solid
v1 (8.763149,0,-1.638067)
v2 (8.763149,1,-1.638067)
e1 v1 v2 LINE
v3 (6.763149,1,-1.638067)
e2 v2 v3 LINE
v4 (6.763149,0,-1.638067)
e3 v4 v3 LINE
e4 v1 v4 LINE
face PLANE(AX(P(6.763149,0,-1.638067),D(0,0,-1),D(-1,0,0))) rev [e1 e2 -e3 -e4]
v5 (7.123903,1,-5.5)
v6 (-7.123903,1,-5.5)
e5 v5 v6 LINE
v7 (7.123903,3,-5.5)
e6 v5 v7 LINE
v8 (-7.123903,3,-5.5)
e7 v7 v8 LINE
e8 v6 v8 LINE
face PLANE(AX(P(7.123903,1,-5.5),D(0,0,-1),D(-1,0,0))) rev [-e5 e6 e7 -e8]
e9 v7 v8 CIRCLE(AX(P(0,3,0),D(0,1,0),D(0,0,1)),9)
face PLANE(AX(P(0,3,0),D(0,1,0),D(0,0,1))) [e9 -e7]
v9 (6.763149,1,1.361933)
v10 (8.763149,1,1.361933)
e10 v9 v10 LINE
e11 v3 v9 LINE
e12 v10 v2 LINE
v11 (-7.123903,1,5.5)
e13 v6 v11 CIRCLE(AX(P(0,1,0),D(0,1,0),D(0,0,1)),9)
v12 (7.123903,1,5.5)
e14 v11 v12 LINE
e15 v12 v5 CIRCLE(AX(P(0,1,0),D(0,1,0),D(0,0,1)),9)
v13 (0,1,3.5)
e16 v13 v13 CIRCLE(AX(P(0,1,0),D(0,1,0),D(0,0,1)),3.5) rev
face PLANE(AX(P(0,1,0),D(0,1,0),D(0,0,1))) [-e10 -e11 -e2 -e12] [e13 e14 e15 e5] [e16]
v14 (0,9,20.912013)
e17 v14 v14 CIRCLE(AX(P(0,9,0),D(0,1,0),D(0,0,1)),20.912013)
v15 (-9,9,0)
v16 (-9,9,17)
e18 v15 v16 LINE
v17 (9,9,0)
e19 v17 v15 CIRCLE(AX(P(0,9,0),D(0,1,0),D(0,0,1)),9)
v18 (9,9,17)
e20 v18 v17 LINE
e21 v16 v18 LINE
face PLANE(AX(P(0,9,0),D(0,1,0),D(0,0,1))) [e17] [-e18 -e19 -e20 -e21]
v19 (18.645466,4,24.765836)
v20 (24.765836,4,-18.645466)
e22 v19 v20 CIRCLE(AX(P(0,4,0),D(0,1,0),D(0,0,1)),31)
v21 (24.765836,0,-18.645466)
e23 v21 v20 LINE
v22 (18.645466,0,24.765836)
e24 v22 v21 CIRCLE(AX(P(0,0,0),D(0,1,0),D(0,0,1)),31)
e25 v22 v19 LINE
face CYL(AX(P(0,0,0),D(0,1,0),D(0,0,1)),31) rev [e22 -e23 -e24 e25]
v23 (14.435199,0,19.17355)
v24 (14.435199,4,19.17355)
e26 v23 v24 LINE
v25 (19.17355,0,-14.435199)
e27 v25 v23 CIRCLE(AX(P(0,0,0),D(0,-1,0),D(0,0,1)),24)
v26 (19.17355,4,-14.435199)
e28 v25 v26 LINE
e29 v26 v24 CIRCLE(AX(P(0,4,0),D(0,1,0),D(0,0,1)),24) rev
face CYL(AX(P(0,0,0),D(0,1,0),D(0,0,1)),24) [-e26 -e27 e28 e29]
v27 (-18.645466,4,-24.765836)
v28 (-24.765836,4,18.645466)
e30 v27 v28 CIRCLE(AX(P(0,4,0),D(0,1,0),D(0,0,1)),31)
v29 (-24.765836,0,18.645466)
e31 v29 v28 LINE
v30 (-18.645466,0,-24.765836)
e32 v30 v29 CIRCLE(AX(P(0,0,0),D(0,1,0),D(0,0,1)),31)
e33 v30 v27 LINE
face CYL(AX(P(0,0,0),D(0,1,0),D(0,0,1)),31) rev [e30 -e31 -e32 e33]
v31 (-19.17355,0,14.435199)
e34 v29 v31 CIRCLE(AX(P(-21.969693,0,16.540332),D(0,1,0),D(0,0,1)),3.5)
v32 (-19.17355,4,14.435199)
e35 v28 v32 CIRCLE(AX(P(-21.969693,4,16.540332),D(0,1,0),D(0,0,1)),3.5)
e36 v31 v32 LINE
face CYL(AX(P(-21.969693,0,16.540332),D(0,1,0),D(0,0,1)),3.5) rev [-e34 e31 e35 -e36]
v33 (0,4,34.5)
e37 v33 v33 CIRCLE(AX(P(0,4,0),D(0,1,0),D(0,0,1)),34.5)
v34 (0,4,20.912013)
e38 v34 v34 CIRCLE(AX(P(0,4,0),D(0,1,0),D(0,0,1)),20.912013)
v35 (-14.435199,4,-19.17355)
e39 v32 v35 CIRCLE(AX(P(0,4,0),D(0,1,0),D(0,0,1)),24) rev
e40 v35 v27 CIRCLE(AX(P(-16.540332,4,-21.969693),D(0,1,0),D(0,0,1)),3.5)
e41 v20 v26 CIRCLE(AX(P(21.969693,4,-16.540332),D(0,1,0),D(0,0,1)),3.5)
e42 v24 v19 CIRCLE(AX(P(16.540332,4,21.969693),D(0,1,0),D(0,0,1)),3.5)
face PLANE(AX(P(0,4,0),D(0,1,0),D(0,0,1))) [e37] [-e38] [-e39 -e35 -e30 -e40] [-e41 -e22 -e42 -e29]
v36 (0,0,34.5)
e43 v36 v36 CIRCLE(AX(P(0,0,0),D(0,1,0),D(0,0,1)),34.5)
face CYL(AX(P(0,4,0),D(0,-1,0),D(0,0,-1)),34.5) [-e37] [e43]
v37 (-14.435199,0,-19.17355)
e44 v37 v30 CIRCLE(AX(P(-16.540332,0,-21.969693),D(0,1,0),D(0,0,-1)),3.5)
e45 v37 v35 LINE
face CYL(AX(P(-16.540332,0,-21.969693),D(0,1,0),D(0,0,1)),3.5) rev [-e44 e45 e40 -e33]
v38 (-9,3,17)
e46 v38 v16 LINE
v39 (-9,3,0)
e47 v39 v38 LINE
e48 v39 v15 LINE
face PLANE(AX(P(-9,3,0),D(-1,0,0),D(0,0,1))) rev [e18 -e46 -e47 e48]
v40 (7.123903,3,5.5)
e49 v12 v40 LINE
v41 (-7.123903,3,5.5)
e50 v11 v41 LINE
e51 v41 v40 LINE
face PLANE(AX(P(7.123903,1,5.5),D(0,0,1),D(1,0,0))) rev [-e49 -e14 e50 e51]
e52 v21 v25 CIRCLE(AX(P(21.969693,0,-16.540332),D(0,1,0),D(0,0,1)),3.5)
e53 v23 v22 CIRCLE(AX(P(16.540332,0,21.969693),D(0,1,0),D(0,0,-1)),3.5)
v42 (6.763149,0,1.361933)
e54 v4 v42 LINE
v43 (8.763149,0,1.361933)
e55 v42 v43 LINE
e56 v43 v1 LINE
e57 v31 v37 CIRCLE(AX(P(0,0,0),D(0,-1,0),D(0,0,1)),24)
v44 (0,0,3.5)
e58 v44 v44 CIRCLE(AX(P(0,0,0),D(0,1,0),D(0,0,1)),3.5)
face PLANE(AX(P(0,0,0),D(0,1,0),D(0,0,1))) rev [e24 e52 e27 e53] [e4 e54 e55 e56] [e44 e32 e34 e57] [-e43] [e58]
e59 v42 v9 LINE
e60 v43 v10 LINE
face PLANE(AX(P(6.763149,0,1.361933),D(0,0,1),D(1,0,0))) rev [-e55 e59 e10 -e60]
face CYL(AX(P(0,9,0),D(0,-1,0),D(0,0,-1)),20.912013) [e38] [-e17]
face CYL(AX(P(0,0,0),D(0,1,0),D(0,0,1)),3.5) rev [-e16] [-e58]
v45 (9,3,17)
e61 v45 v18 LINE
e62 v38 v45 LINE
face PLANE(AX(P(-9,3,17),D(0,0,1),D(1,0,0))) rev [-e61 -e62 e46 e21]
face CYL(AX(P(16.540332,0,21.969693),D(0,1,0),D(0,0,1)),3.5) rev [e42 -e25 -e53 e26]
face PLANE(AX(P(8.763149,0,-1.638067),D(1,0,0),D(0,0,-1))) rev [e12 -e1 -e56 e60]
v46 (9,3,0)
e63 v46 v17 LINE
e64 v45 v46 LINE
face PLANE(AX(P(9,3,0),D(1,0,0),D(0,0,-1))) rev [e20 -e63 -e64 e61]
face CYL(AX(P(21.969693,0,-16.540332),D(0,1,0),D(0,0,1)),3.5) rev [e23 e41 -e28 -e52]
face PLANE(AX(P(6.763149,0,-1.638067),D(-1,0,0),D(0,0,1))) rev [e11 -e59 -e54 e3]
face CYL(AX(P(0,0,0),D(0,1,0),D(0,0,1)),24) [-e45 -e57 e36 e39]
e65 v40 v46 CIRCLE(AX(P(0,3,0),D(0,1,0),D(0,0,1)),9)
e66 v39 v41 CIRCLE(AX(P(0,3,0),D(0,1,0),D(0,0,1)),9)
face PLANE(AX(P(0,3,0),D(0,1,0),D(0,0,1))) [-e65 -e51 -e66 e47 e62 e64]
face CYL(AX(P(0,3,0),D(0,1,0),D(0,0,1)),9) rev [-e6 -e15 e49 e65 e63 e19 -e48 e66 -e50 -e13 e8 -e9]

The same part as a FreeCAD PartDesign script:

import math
import FreeCAD as App
import Part
import Sketcher

doc = App.newDocument("Part")
params = doc.addObject("Spreadsheet::Sheet", "Params")
for row, (alias, value) in enumerate([
    ("sketch1_diameter", "69 mm"),
    ("pad1_length", "4 mm"),
    ("sketch2_radius", "31 mm"),
    ("sketch2_radius2", "24 mm"),
    ("pad2_length", "5 mm"),
    ("sketch4_radius", "9 mm"),
    ("sketch4_height", "17 mm"),
    ("pocket2_length", "6 mm"),
    ("sketch5_diameter", "7 mm"),
    ("sketch6_radius", "9 mm"),
    ("pocket4_length", "2 mm"),
    ("sketch7_width", "2 mm"),
    ("sketch7_height", "3 mm"),
], start=1):
    params.set(f"A{row}", alias)
    params.set(f"B{row}", "=" + value)
    params.setAlias(f"B{row}", alias)

body = doc.addObject("PartDesign::Body", "Body")

# Sketch on XZ plane
sketch1 = doc.addObject("Sketcher::SketchObject", "Sketch")
body.addObject(sketch1)
sketch1.AttachmentSupport = (doc.XZ_Plane, [""])
sketch1.MapMode = "FlatFace"
sketch1.addGeometry(Part.Circle(App.Vector(0, 0, 0), App.Vector(0, 0, 1), 34.5), False)
sketch1.addConstraint([
    Sketcher.Constraint("Coincident", 0, 3, -1, 1),
    Sketcher.Constraint("Diameter", 0, 69.0),
])
sketch1.setExpression("Constraints[1]", "Params.sketch1_diameter")
pad1 = doc.addObject("PartDesign::Pad", "Pad")
body.addObject(pad1)
pad1.Profile = sketch1
pad1.setExpression("Length", "Params.pad1_length")
pad1.Reversed = True

# Sketch on XZ plane
sketch2 = doc.addObject("Sketcher::SketchObject", "Sketch001")
body.addObject(sketch2)
sketch2.AttachmentSupport = (doc.XZ_Plane, [""])
sketch2.MapMode = "FlatFace"
sketch2.AttachmentOffset = App.Placement(App.Vector(0, 0, -4), App.Rotation())
sketch2.addGeometry([
    Part.ArcOfCircle(Part.Circle(App.Vector(0, 0, 0), App.Vector(0, 0, 1), 31), math.radians(-36.97501), math.radians(53.02499)),  # 0
    Part.ArcOfCircle(Part.Circle(App.Vector(21.969693, -16.540332, 0), App.Vector(0, 0, 1), 3.5), math.radians(143.02499), math.radians(323.02499)),  # 1
    Part.ArcOfCircle(Part.Circle(App.Vector(0, 0, 0), App.Vector(0, 0, 1), 24), math.radians(-36.97501), math.radians(53.02499)),  # 2
    Part.ArcOfCircle(Part.Circle(App.Vector(16.540332, 21.969693, 0), App.Vector(0, 0, 1), 3.5), math.radians(53.02499), math.radians(233.02499)),  # 3
    Part.ArcOfCircle(Part.Circle(App.Vector(0, 0, 0), App.Vector(0, 0, 1), 24), math.radians(143.02499), math.radians(233.02499)),  # 4
    Part.ArcOfCircle(Part.Circle(App.Vector(-16.540332, -21.969693, 0), App.Vector(0, 0, 1), 3.5), math.radians(-126.97501), math.radians(53.02499)),  # 5
    Part.ArcOfCircle(Part.Circle(App.Vector(0, 0, 0), App.Vector(0, 0, 1), 31), math.radians(143.02499), math.radians(233.02499)),  # 6
    Part.ArcOfCircle(Part.Circle(App.Vector(-21.969693, 16.540332, 0), App.Vector(0, 0, 1), 3.5), math.radians(-36.97501), math.radians(143.02499)),  # 7
], False)
sketch2.addConstraint([
    Sketcher.Constraint("Tangent", 0, 1, 1, 2),
    Sketcher.Constraint("Tangent", 1, 1, 2, 1),
    Sketcher.Constraint("Tangent", 2, 2, 3, 2),
    Sketcher.Constraint("Tangent", 3, 1, 0, 2),
    Sketcher.Constraint("Tangent", 4, 2, 5, 2),
    Sketcher.Constraint("Tangent", 5, 1, 6, 2),
    Sketcher.Constraint("Tangent", 6, 1, 7, 2),
    Sketcher.Constraint("Tangent", 7, 1, 4, 1),
    Sketcher.Constraint("Coincident", 0, 3, -1, 1),
    Sketcher.Constraint("Coincident", 2, 3, -1, 1),
    Sketcher.Constraint("Coincident", 4, 3, -1, 1),
    Sketcher.Constraint("Coincident", 6, 3, -1, 1),
    Sketcher.Constraint("Equal", 2, 4),
    Sketcher.Constraint("Equal", 3, 5),
    Sketcher.Constraint("Radius", 0, 31.0),
    Sketcher.Constraint("Radius", 2, 24.0),
    Sketcher.Constraint("DistanceY", 1, 1, -1, 1, 14.435199),
    Sketcher.Constraint("DistanceX", -1, 1, 2, 2, 14.435199),
    Sketcher.Constraint("DistanceX", 4, 2, -1, 1, 14.435199),
    Sketcher.Constraint("DistanceY", -1, 1, 7, 1, 14.435199),
])
sketch2.setExpression("Constraints[14]", "Params.sketch2_radius")
sketch2.setExpression("Constraints[15]", "Params.sketch2_radius2")
pocket1 = doc.addObject("PartDesign::Pocket", "Pocket")
body.addObject(pocket1)
pocket1.Profile = sketch2
pocket1.Type = "ThroughAll"
pocket1.Midplane = True

# Sketch on XZ plane
sketch3 = doc.addObject("Sketcher::SketchObject", "Sketch002")
body.addObject(sketch3)
sketch3.AttachmentSupport = (doc.XZ_Plane, [""])
sketch3.MapMode = "FlatFace"
sketch3.AttachmentOffset = App.Placement(App.Vector(0, 0, -4), App.Rotation())
sketch3.addGeometry(Part.Circle(App.Vector(0, 0, 0), App.Vector(0, 0, 1), 20.912013), False)
sketch3.addConstraint([
    Sketcher.Constraint("Coincident", 0, 3, -1, 1),
    Sketcher.Constraint("Diameter", 0, 41.824027),
])
pad2 = doc.addObject("PartDesign::Pad", "Pad001")
body.addObject(pad2)
pad2.Profile = sketch3
pad2.setExpression("Length", "Params.pad2_length")
pad2.Reversed = True

# Sketch on XZ plane
sketch4 = doc.addObject("Sketcher::SketchObject", "Sketch003")
body.addObject(sketch4)
sketch4.AttachmentSupport = (doc.XZ_Plane, [""])
sketch4.MapMode = "FlatFace"
sketch4.AttachmentOffset = App.Placement(App.Vector(0, 0, -9), App.Rotation())
sketch4.addGeometry([
    Part.LineSegment(App.Vector(-9, 0, 0), App.Vector(-9, 17, 0)),
    Part.LineSegment(App.Vector(-9, 17, 0), App.Vector(9, 17, 0)),
    Part.LineSegment(App.Vector(9, 17, 0), App.Vector(9, 0, 0)),
    Part.ArcOfCircle(Part.Circle(App.Vector(0, 0, 0), App.Vector(0, 0, 1), 9), math.radians(180), math.radians(360)),
], False)
sketch4.addConstraint([
    Sketcher.Constraint("Coincident", 0, 2, 1, 1),
    Sketcher.Constraint("Coincident", 1, 2, 2, 1),
    Sketcher.Constraint("Tangent", 2, 2, 3, 2),
    Sketcher.Constraint("Tangent", 3, 1, 0, 1),
    Sketcher.Constraint("Vertical", 0),
    Sketcher.Constraint("Horizontal", 1),
    Sketcher.Constraint("Vertical", 2),
    Sketcher.Constraint("Coincident", 3, 3, -1, 1),
    Sketcher.Constraint("Radius", 3, 9.0),
    Sketcher.Constraint("DistanceY", 0, 1, 0, 2, 17.0),
])
sketch4.setExpression("Constraints[8]", "Params.sketch4_radius")
sketch4.setExpression("Constraints[9]", "Params.sketch4_height")
pocket2 = doc.addObject("PartDesign::Pocket", "Pocket001")
body.addObject(pocket2)
pocket2.Profile = sketch4
pocket2.setExpression("Length", "Params.pocket2_length")
pocket2.Reversed = True

# Sketch on XZ plane
sketch5 = doc.addObject("Sketcher::SketchObject", "Sketch004")
body.addObject(sketch5)
sketch5.AttachmentSupport = (doc.XZ_Plane, [""])
sketch5.MapMode = "FlatFace"
sketch5.AttachmentOffset = App.Placement(App.Vector(0, 0, -9), App.Rotation())
sketch5.addGeometry(Part.Circle(App.Vector(0, 0, 0), App.Vector(0, 0, 1), 3.5), False)
sketch5.addConstraint([
    Sketcher.Constraint("Coincident", 0, 3, -1, 1),
    Sketcher.Constraint("Diameter", 0, 7.0),
])
sketch5.setExpression("Constraints[1]", "Params.sketch5_diameter")
pocket3 = doc.addObject("PartDesign::Pocket", "Pocket002")
body.addObject(pocket3)
pocket3.Profile = sketch5
pocket3.Type = "ThroughAll"
pocket3.Midplane = True

# Sketch on XZ plane
sketch6 = doc.addObject("Sketcher::SketchObject", "Sketch005")
body.addObject(sketch6)
sketch6.AttachmentSupport = (doc.XZ_Plane, [""])
sketch6.MapMode = "FlatFace"
sketch6.AttachmentOffset = App.Placement(App.Vector(0, 0, -3), App.Rotation())
sketch6.addGeometry([
    Part.LineSegment(App.Vector(-7.123903, 5.5, 0), App.Vector(7.123903, 5.5, 0)),
    Part.ArcOfCircle(Part.Circle(App.Vector(0, 0, 0), App.Vector(0, 0, 1), 9), math.radians(-37.669887), math.radians(37.669887)),
    Part.LineSegment(App.Vector(7.123903, -5.5, 0), App.Vector(-7.123903, -5.5, 0)),
    Part.ArcOfCircle(Part.Circle(App.Vector(0, 0, 0), App.Vector(0, 0, 1), 9), math.radians(142.330113), math.radians(217.669887)),
], False)
sketch6.addConstraint([
    Sketcher.Constraint("Coincident", 0, 2, 1, 2),
    Sketcher.Constraint("Coincident", 1, 1, 2, 1),
    Sketcher.Constraint("Coincident", 2, 2, 3, 2),
    Sketcher.Constraint("Coincident", 3, 1, 0, 1),
    Sketcher.Constraint("Horizontal", 0),
    Sketcher.Constraint("Horizontal", 2),
    Sketcher.Constraint("Coincident", 1, 3, -1, 1),
    Sketcher.Constraint("Coincident", 3, 3, -1, 1),
    Sketcher.Constraint("Equal", 1, 3),
    Sketcher.Constraint("Vertical", 0, 2, 1, 1),
    Sketcher.Constraint("Radius", 1, 9.0),
    Sketcher.Constraint("DistanceY", 1, 1, 0, 2, 11.0),
])
sketch6.setExpression("Constraints[10]", "Params.sketch6_radius")
pocket4 = doc.addObject("PartDesign::Pocket", "Pocket003")
body.addObject(pocket4)
pocket4.Profile = sketch6
pocket4.setExpression("Length", "Params.pocket4_length")
pocket4.Reversed = True

# Sketch on XZ plane
sketch7 = doc.addObject("Sketcher::SketchObject", "Sketch006")
body.addObject(sketch7)
sketch7.AttachmentSupport = (doc.XZ_Plane, [""])
sketch7.MapMode = "FlatFace"
sketch7.AttachmentOffset = App.Placement(App.Vector(0, 0, -9), App.Rotation())
sketch7.addGeometry([
    Part.LineSegment(App.Vector(6.763149, -1.638067, 0), App.Vector(6.763149, 1.361933, 0)),
    Part.LineSegment(App.Vector(6.763149, 1.361933, 0), App.Vector(8.763149, 1.361933, 0)),
    Part.LineSegment(App.Vector(8.763149, 1.361933, 0), App.Vector(8.763149, -1.638067, 0)),
    Part.LineSegment(App.Vector(8.763149, -1.638067, 0), App.Vector(6.763149, -1.638067, 0)),
], False)
sketch7.addConstraint([
    Sketcher.Constraint("Coincident", 0, 2, 1, 1),
    Sketcher.Constraint("Coincident", 1, 2, 2, 1),
    Sketcher.Constraint("Coincident", 2, 2, 3, 1),
    Sketcher.Constraint("Coincident", 3, 2, 0, 1),
    Sketcher.Constraint("Vertical", 0),
    Sketcher.Constraint("Horizontal", 1),
    Sketcher.Constraint("Vertical", 2),
    Sketcher.Constraint("Horizontal", 3),
    Sketcher.Constraint("DistanceX", 1, 1, 1, 2, 2.0),
    Sketcher.Constraint("DistanceY", 0, 1, 0, 2, 3.0),
    Sketcher.Constraint("DistanceX", -1, 1, 0, 2, 6.763149),
    Sketcher.Constraint("DistanceY", -1, 1, 0, 2, 1.361933),
])
sketch7.setExpression("Constraints[8]", "Params.sketch7_width")
sketch7.setExpression("Constraints[9]", "Params.sketch7_height")
pocket5 = doc.addObject("PartDesign::Pocket", "Pocket004")
body.addObject(pocket5)
pocket5.Profile = sketch7
pocket5.Type = "ThroughAll"
pocket5.Reversed = True

doc.recompute()
